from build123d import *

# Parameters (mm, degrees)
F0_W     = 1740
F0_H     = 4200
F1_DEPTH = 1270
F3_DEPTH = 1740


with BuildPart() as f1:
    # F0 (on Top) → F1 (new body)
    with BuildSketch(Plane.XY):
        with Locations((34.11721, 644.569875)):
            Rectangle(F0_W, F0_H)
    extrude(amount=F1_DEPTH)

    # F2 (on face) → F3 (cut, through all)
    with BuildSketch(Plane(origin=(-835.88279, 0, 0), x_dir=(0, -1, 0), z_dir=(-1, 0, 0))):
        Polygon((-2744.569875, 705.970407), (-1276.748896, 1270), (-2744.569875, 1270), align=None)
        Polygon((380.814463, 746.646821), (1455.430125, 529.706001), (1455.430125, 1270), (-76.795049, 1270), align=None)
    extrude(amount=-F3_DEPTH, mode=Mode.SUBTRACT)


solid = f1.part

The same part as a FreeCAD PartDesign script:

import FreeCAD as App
import Part
import Sketcher
Q = App.Units.Quantity

doc = App.newDocument("Part")
params = doc.addObject("Spreadsheet::Sheet", "Params")
for row, (alias, value) in enumerate([
    ("sketch1_width", "1740 mm"),
    ("sketch1_height", "4200 mm"),
    ("pad1_length", "1270 mm"),
], start=1):
    params.set(f"A{row}", alias)
    params.set(f"B{row}", "=" + value)
    params.setAlias(f"B{row}", alias)

body = doc.addObject("PartDesign::Body", "Body")

sketch1 = body.newObject("Sketcher::SketchObject", "Sketch")
sketch1.AttachmentSupport = (doc.getObject("XY_Plane"), [""])
sketch1.MapMode = "FlatFace"
sketch1.addGeometry([
    Part.LineSegment(App.Vector(-836, 2745, 0), App.Vector(-836, -1455, 0)),
    Part.LineSegment(App.Vector(-836, -1455, 0), App.Vector(904, -1455, 0)),
    Part.LineSegment(App.Vector(904, -1455, 0), App.Vector(904, 2745, 0)),
    Part.LineSegment(App.Vector(904, 2745, 0), App.Vector(-836, 2745, 0)),
], False)
sketch1.addConstraint([
    Sketcher.Constraint("Coincident", 0, 2, 1, 1),
    Sketcher.Constraint("Coincident", 1, 2, 2, 1),
    Sketcher.Constraint("Coincident", 2, 2, 3, 1),
    Sketcher.Constraint("Coincident", 3, 2, 0, 1),
    Sketcher.Constraint("Vertical", 0),
    Sketcher.Constraint("Horizontal", 1),
    Sketcher.Constraint("Vertical", 2),
    Sketcher.Constraint("Horizontal", 3),
    Sketcher.Constraint("DistanceX", 1, 1, 1, 2, Q("1740 mm")),
    Sketcher.Constraint("DistanceY", 0, 2, 0, 1, Q("4200 mm")),
    Sketcher.Constraint("DistanceX", 0, 2, -1, 1, Q("835.88279 mm")),
    Sketcher.Constraint("DistanceY", 0, 2, -1, 1, Q("1455.430125 mm")),
])
sketch1.setExpression("Constraints[8]", "Params.sketch1_width")
sketch1.setExpression("Constraints[9]", "Params.sketch1_height")
pad1 = body.newObject("PartDesign::Pad", "Pad")
pad1.Profile = sketch1
pad1.setExpression("Length", "Params.pad1_length")

sketch2 = body.newObject("Sketcher::SketchObject", "Sketch001")
sketch2.AttachmentSupport = (doc.getObject("YZ_Plane"), [""])
sketch2.MapMode = "FlatFace"
sketch2.AttachmentOffset = App.Placement(App.Vector(0, 0, -835.88279), App.Rotation())
sketch2.addGeometry([
    Part.LineSegment(App.Vector(2745, 706, 0), App.Vector(1277, 1270, 0)),
    Part.LineSegment(App.Vector(1277, 1270, 0), App.Vector(2745, 1270, 0)),
    Part.LineSegment(App.Vector(2745, 1270, 0), App.Vector(2745, 706, 0)),
    Part.LineSegment(App.Vector(-381, 747, 0), App.Vector(-1455, 530, 0)),
    Part.LineSegment(App.Vector(-1455, 530, 0), App.Vector(-1455, 1270, 0)),
    Part.LineSegment(App.Vector(-1455, 1270, 0), App.Vector(77, 1270, 0)),
    Part.LineSegment(App.Vector(77, 1270, 0), App.Vector(-381, 747, 0)),
], False)
sketch2.addConstraint([
    Sketcher.Constraint("Coincident", 0, 2, 1, 1),
    Sketcher.Constraint("Coincident", 1, 2, 2, 1),
    Sketcher.Constraint("Coincident", 2, 2, 0, 1),
    Sketcher.Constraint("Coincident", 3, 2, 4, 1),
    Sketcher.Constraint("Coincident", 4, 2, 5, 1),
    Sketcher.Constraint("Coincident", 5, 2, 6, 1),
    Sketcher.Constraint("Coincident", 6, 2, 3, 1),
    Sketcher.Constraint("Horizontal", 1),
    Sketcher.Constraint("Vertical", 2),
    Sketcher.Constraint("Vertical", 4),
    Sketcher.Constraint("Horizontal", 5),
    Sketcher.Constraint("Horizontal", 1, 2, 4, 2),
    Sketcher.Constraint("DistanceY", -1, 1, 0, 2, Q("1270 mm")),
    Sketcher.Constraint("DistanceX", 3, 2, 2, 2, Q("4200 mm")),
    Sketcher.Constraint("DistanceY", 4, 1, 4, 2, Q("740.293999 mm")),
    Sketcher.Constraint("DistanceX", 1, 1, 1, 2, Q("1467.820979 mm")),
    Sketcher.Constraint("Distance", 0, Q("1572.459159 mm")),
    Sketcher.Constraint("Distance", 6, Q("695.201421 mm")),
    Sketcher.Constraint("DistanceX", 5, 1, 5, 2, Q("1532.225174 mm")),
    Sketcher.Constraint("DistanceX", -1, 1, 5, 2, Q("76.795049 mm")),
    Sketcher.Constraint("DistanceY", -1, 1, 6, 2, Q("746.646821 mm")),
])
pocket1 = body.newObject("PartDesign::Pocket", "Pocket")
pocket1.Profile = sketch2
pocket1.Type = "ThroughAll"
pocket1.Reversed = True

doc.recompute()
